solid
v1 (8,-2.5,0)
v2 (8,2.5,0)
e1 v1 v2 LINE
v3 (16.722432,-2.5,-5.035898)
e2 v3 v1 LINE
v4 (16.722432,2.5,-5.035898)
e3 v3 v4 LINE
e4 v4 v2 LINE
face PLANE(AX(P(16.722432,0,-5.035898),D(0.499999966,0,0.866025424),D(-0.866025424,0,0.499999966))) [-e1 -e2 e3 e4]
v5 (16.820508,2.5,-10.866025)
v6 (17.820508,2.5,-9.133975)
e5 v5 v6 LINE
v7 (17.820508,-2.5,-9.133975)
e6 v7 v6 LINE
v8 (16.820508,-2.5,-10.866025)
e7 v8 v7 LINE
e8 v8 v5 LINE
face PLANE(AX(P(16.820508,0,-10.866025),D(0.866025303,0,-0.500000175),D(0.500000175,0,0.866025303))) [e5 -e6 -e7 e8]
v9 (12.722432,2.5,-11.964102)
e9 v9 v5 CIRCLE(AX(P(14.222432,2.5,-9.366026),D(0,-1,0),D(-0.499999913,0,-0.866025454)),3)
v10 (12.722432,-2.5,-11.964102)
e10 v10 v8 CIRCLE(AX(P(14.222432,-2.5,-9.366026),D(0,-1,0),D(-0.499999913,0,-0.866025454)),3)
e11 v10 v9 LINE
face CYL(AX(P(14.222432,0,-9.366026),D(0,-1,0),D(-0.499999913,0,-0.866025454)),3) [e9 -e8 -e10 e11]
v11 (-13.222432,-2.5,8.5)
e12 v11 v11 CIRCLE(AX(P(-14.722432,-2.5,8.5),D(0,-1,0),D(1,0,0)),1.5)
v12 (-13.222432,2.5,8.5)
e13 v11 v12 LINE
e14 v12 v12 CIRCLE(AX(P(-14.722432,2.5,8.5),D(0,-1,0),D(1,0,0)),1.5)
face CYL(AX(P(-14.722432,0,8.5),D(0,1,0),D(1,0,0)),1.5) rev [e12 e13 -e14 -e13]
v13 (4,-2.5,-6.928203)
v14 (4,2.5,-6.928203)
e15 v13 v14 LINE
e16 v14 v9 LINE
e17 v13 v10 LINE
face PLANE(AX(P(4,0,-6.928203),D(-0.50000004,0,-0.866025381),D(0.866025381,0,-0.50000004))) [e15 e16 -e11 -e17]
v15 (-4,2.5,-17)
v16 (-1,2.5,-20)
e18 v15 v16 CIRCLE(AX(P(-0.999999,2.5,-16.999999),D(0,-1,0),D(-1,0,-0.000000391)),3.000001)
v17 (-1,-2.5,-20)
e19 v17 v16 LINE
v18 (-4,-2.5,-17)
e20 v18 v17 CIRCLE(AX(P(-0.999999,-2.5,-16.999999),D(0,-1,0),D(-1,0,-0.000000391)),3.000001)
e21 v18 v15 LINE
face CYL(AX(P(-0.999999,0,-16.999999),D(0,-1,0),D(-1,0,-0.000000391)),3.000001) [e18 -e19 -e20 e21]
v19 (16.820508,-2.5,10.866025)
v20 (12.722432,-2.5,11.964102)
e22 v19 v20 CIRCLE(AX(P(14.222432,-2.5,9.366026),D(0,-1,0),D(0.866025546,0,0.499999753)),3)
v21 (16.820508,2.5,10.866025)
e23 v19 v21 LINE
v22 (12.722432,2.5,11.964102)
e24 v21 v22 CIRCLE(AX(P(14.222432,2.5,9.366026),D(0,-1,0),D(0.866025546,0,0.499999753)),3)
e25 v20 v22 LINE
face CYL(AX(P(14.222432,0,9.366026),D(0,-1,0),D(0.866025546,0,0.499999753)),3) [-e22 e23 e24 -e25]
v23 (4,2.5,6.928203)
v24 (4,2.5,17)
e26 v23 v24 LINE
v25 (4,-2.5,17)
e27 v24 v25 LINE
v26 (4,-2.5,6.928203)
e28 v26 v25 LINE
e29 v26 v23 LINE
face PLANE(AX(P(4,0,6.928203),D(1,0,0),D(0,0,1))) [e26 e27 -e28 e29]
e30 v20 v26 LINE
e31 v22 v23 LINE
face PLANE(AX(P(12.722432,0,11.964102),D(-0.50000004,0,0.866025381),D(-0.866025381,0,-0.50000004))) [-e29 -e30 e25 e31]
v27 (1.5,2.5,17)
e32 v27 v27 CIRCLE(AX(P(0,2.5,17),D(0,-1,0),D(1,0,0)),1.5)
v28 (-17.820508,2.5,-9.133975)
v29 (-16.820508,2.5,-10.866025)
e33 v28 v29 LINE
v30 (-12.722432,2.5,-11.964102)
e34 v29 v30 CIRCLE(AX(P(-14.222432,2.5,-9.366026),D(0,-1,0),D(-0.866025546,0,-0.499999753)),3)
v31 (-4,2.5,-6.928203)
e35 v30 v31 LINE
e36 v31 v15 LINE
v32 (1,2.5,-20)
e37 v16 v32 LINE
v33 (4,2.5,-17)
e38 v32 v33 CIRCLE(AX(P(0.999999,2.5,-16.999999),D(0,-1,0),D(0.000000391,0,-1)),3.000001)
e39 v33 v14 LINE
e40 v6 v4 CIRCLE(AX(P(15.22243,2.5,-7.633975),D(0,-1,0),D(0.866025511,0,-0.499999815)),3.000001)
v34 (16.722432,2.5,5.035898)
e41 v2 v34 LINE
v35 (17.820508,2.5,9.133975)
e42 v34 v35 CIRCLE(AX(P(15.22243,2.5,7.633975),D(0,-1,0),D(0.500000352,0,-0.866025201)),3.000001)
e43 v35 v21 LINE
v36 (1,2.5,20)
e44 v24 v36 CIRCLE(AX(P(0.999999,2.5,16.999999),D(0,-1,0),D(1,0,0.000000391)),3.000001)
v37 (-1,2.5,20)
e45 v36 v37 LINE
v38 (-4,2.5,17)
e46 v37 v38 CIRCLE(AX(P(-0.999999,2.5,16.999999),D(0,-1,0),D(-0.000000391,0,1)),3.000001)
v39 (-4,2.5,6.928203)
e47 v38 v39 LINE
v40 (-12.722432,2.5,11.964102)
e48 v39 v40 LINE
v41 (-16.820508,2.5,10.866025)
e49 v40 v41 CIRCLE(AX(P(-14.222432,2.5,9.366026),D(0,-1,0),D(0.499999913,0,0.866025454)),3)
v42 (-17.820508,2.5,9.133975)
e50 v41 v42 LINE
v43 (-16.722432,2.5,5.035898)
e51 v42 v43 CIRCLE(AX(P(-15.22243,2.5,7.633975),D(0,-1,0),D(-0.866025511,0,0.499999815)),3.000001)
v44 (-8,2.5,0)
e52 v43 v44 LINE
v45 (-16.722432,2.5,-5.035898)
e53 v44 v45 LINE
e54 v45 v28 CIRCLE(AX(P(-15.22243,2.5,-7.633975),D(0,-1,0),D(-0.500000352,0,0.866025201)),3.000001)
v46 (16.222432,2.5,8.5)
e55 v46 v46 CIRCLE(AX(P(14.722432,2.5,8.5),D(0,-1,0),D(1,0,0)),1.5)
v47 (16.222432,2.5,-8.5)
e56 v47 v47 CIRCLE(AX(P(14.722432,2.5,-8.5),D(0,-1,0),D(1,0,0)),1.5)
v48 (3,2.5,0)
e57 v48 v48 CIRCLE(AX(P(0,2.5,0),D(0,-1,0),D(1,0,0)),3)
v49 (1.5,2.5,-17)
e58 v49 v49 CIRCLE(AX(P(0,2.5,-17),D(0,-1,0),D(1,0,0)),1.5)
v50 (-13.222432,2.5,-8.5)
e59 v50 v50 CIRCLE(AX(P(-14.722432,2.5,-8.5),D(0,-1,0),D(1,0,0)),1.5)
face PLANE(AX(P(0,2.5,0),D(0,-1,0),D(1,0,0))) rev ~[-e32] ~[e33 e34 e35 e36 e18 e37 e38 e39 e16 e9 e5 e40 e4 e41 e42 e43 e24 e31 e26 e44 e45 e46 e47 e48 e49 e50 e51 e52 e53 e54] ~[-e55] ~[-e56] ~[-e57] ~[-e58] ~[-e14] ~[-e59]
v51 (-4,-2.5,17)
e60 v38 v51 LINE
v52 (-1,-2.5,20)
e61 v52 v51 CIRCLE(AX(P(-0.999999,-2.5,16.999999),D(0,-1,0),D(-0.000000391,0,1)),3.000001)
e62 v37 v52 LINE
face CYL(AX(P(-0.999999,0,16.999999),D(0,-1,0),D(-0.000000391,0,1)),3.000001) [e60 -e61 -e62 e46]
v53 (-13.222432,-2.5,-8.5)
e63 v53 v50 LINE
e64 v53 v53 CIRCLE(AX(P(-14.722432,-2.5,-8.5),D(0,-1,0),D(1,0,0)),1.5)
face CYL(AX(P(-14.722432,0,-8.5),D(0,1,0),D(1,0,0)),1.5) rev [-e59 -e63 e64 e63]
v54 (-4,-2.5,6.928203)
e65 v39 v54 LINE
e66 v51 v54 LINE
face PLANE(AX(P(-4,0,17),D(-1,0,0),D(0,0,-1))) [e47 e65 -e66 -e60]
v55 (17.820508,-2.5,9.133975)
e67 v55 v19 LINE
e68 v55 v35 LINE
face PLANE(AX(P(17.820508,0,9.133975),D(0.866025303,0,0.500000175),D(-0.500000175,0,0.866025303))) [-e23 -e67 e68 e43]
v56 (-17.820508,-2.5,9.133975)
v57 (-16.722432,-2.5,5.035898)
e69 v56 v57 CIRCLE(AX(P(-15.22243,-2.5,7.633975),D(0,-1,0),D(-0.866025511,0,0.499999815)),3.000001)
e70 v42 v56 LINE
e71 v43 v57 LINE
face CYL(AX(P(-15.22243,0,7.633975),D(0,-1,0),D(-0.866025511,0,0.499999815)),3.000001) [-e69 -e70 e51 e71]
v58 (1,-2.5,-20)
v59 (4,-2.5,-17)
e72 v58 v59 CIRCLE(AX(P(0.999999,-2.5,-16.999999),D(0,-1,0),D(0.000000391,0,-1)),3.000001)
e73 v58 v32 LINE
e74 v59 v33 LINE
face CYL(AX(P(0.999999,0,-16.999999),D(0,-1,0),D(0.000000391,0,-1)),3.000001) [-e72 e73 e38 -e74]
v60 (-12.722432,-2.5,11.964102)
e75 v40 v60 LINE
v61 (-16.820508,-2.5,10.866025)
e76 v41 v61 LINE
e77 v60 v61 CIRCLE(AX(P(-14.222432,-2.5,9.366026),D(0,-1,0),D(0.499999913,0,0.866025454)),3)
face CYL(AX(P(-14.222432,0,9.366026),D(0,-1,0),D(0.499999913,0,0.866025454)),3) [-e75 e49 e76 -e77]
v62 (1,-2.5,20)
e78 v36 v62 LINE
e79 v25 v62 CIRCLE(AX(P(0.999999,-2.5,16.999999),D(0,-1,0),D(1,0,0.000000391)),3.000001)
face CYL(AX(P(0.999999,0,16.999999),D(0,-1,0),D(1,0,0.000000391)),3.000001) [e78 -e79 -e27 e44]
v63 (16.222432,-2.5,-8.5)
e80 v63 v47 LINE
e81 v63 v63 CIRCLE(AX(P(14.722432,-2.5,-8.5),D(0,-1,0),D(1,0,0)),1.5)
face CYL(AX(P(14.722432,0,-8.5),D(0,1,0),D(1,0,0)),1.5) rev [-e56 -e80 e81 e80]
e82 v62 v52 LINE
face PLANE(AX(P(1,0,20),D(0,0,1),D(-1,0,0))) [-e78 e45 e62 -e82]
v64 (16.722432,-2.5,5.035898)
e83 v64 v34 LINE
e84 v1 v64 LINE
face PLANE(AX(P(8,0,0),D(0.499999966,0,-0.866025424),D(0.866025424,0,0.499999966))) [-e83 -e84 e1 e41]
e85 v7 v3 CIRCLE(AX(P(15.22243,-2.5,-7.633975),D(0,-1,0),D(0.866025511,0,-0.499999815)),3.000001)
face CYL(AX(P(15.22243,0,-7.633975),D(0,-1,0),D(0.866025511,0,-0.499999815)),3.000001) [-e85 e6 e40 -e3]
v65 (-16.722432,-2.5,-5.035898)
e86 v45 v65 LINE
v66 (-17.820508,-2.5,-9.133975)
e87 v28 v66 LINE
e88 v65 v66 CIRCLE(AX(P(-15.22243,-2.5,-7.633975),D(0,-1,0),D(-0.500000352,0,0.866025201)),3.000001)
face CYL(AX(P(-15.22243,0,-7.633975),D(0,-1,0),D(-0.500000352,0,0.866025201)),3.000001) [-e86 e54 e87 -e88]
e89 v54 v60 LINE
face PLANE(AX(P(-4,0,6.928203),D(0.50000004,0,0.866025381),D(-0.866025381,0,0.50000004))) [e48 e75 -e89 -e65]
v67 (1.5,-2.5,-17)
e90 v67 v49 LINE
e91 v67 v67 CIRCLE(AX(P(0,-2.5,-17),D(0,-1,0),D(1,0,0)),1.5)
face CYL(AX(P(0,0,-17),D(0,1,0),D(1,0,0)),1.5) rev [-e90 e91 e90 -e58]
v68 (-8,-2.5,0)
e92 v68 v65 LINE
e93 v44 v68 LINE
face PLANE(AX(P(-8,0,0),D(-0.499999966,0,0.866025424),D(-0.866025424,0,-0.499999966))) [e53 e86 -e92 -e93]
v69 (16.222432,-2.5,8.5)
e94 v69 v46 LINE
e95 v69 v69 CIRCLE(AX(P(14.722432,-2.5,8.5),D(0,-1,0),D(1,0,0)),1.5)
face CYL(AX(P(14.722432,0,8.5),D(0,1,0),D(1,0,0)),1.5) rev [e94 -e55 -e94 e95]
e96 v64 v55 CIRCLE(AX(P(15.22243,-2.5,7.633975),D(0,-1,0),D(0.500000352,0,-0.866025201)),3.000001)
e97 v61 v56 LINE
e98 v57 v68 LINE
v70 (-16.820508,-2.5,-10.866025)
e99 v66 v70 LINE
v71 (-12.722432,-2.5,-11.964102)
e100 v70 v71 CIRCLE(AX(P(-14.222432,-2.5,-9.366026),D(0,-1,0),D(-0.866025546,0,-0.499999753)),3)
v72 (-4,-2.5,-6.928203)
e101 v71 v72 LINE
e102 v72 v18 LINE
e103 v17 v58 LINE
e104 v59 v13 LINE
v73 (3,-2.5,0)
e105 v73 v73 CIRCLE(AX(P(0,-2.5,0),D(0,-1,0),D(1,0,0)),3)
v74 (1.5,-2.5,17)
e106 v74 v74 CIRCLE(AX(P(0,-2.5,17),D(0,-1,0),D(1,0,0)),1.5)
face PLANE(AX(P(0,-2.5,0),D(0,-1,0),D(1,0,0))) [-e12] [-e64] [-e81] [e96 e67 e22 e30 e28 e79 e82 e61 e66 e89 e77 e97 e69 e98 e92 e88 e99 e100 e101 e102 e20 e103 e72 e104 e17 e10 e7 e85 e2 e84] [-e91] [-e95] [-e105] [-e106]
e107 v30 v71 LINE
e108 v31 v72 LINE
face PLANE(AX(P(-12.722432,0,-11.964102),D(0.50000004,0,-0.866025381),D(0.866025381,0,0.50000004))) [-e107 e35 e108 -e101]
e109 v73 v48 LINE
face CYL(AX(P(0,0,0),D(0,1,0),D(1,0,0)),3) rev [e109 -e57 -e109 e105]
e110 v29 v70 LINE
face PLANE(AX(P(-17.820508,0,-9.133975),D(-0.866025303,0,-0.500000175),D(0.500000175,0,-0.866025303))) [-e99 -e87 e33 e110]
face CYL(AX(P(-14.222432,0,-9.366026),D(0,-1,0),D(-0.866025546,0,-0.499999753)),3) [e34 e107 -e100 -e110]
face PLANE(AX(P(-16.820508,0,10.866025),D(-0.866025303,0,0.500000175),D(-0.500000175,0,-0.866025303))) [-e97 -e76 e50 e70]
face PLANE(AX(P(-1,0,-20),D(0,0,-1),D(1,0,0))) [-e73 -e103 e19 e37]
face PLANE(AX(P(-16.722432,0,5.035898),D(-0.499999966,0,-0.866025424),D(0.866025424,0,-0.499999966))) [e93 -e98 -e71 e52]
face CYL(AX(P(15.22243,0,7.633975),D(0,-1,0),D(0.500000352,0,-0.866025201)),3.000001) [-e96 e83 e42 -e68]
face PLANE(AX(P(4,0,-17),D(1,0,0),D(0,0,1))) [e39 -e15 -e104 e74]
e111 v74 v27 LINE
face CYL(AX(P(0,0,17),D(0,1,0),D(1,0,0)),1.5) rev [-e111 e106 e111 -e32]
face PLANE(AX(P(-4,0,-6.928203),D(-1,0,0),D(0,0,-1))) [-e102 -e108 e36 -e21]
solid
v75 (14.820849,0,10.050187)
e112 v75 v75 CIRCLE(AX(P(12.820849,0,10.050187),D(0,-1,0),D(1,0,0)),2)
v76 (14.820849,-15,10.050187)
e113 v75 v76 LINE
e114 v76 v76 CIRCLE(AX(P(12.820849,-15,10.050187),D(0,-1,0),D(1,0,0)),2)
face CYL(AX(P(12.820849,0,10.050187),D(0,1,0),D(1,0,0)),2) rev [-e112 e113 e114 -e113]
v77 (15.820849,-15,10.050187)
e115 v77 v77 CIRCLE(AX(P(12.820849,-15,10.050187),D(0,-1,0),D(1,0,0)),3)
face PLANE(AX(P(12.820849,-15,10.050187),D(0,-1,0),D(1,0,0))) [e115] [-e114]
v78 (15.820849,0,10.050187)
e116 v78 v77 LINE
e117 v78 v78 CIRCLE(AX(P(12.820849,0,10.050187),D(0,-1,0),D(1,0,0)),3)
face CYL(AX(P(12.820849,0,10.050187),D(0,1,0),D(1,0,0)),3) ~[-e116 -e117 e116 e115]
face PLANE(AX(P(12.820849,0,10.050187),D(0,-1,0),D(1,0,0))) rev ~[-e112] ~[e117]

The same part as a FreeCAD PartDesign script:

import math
import FreeCAD as App
import Part
import Sketcher
from FreeCAD import Vector
Q = App.Units.Quantity

doc = App.newDocument("Part")
body = doc.addObject("PartDesign::Body", "Body")

sketch1 = body.newObject("Sketcher::SketchObject", "Sketch")
sketch1.AttachmentSupport = (doc.getObject("XZ_Plane"), [""])
sketch1.MapMode = "FlatFace"
sketch1.addGeometry([
    Part.LineSegment(Vector(4, 6.928203, 0), Vector(4, 17, 0)),
    Part.ArcOfCircle(Part.Circle(Vector(0.999999, 16.999999, 0), Vector(0, 0, 1), 3.000001), math.radians(0.000022), math.radians(89.999978)),
    Part.LineSegment(Vector(1, 20, 0), Vector(-1, 20, 0)),
    Part.ArcOfCircle(Part.Circle(Vector(-0.999999, 16.999999, 0), Vector(0, 0, 1), 3.000001), math.radians(90.000022), math.radians(179.999978)),
    Part.LineSegment(Vector(-4, 17, 0), Vector(-4, 6.928203, 0)),
    Part.LineSegment(Vector(-4, 6.928203, 0), Vector(-12.722432, 11.964102, 0)),
    Part.ArcOfCircle(Part.Circle(Vector(-14.222432, 9.366026, 0), Vector(0, 0, 1), 3), math.radians(60.000006), math.radians(150.000016)),
    Part.LineSegment(Vector(-16.820508, 10.866025, 0), Vector(-17.820508, 9.133975, 0)),
    Part.ArcOfCircle(Part.Circle(Vector(-15.22243, 7.633975, 0), Vector(0, 0, 1), 3.000001), math.radians(150.000012), math.radians(239.999977)),
    Part.LineSegment(Vector(-16.722432, 5.035898, 0), Vector(-8, 0, 0)),
    Part.LineSegment(Vector(-8, 0, 0), Vector(-16.722432, -5.035898, 0)),
    Part.ArcOfCircle(Part.Circle(Vector(-15.22243, -7.633975, 0), Vector(0, 0, 1), 3.000001), math.radians(120.000023), math.radians(209.999988)),
    Part.LineSegment(Vector(-17.820508, -9.133975, 0), Vector(-16.820508, -10.866025, 0)),
    Part.ArcOfCircle(Part.Circle(Vector(-14.222432, -9.366026, 0), Vector(0, 0, 1), 3), math.radians(-150.000016), math.radians(-60.000006)),
    Part.LineSegment(Vector(-12.722432, -11.964102, 0), Vector(-4, -6.928203, 0)),
    Part.LineSegment(Vector(-4, -6.928203, 0), Vector(-4, -17, 0)),
    Part.ArcOfCircle(Part.Circle(Vector(-0.999999, -16.999999, 0), Vector(0, 0, 1), 3.000001), math.radians(-179.999978), math.radians(-90.000022)),
    Part.LineSegment(Vector(-1, -20, 0), Vector(1, -20, 0)),
    Part.ArcOfCircle(Part.Circle(Vector(0.999999, -16.999999, 0), Vector(0, 0, 1), 3.000001), math.radians(-89.999978), math.radians(-0.000022)),
    Part.LineSegment(Vector(4, -17, 0), Vector(4, -6.928203, 0)),
    Part.LineSegment(Vector(4, -6.928203, 0), Vector(12.722432, -11.964102, 0)),
    Part.ArcOfCircle(Part.Circle(Vector(14.222432, -9.366026, 0), Vector(0, 0, 1), 3), math.radians(-119.999994), math.radians(-29.999984)),
    Part.LineSegment(Vector(16.820508, -10.866025, 0), Vector(17.820508, -9.133975, 0)),
    Part.ArcOfCircle(Part.Circle(Vector(15.22243, -7.633975, 0), Vector(0, 0, 1), 3.000001), math.radians(-29.999988), math.radians(59.999977)),
    Part.LineSegment(Vector(16.722432, -5.035898, 0), Vector(8, 0, 0)),
    Part.LineSegment(Vector(8, 0, 0), Vector(16.722432, 5.035898, 0)),
    Part.ArcOfCircle(Part.Circle(Vector(15.22243, 7.633975, 0), Vector(0, 0, 1), 3.000001), math.radians(-59.999977), math.radians(29.999988)),
    Part.LineSegment(Vector(17.820508, 9.133975, 0), Vector(16.820508, 10.866025, 0)),
    Part.ArcOfCircle(Part.Circle(Vector(14.222432, 9.366026, 0), Vector(0, 0, 1), 3), math.radians(29.999984), math.radians(119.999994)),
    Part.LineSegment(Vector(12.722432, 11.964102, 0), Vector(4, 6.928203, 0)),
    Part.Circle(Vector(-14.722432, -8.5, 0), Vector(0, 0, 1), 1.5),
    Part.Circle(Vector(0, -17, 0), Vector(0, 0, 1), 1.5),
    Part.Circle(Vector(14.722432, -8.5, 0), Vector(0, 0, 1), 1.5),
    Part.Circle(Vector(-14.722432, 8.5, 0), Vector(0, 0, 1), 1.5),
    Part.Circle(Vector(0, 0, 0), Vector(0, 0, 1), 3),
    Part.Circle(Vector(14.722432, 8.5, 0), Vector(0, 0, 1), 1.5),
    Part.Circle(Vector(0, 17, 0), Vector(0, 0, 1), 1.5),
], False)
sketch1.addConstraint([
    Sketcher.Constraint("Tangent", 0, 2, 1, 1),
    Sketcher.Constraint("Tangent", 1, 2, 2, 1),
    Sketcher.Constraint("Tangent", 2, 2, 3, 1),
    Sketcher.Constraint("Tangent", 3, 2, 4, 1),
    Sketcher.Constraint("Coincident", 4, 2, 5, 1),
    Sketcher.Constraint("Tangent", 5, 2, 6, 1),
    Sketcher.Constraint("Tangent", 6, 2, 7, 1),
    Sketcher.Constraint("Tangent", 7, 2, 8, 1),
    Sketcher.Constraint("Tangent", 8, 2, 9, 1),
    Sketcher.Constraint("Coincident", 9, 2, 10, 1),
    Sketcher.Constraint("Tangent", 10, 2, 11, 1),
    Sketcher.Constraint("Tangent", 11, 2, 12, 1),
    Sketcher.Constraint("Tangent", 12, 2, 13, 1),
    Sketcher.Constraint("Tangent", 13, 2, 14, 1),
    Sketcher.Constraint("Coincident", 14, 2, 15, 1),
    Sketcher.Constraint("Tangent", 15, 2, 16, 1),
    Sketcher.Constraint("Tangent", 16, 2, 17, 1),
    Sketcher.Constraint("Tangent", 17, 2, 18, 1),
    Sketcher.Constraint("Tangent", 18, 2, 19, 1),
    Sketcher.Constraint("Coincident", 19, 2, 20, 1),
    Sketcher.Constraint("Tangent", 20, 2, 21, 1),
    Sketcher.Constraint("Tangent", 21, 2, 22, 1),
    Sketcher.Constraint("Tangent", 22, 2, 23, 1),
    Sketcher.Constraint("Tangent", 23, 2, 24, 1),
    Sketcher.Constraint("Coincident", 24, 2, 25, 1),
    Sketcher.Constraint("Tangent", 25, 2, 26, 1),
    Sketcher.Constraint("Tangent", 26, 2, 27, 1),
    Sketcher.Constraint("Tangent", 27, 2, 28, 1),
    Sketcher.Constraint("Tangent", 28, 2, 29, 1),
    Sketcher.Constraint("Coincident", 29, 2, 0, 1),
    Sketcher.Constraint("Vertical", 0),
    Sketcher.Constraint("Horizontal", 2),
    Sketcher.Constraint("Vertical", 4),
    Sketcher.Constraint("Vertical", 15),
    Sketcher.Constraint("Horizontal", 17),
    Sketcher.Constraint("Vertical", 19),
    Sketcher.Constraint("Coincident", 34, 3, -1, 1),
    Sketcher.Constraint("Equal", 1, 3),
    Sketcher.Constraint("Equal", 3, 6),
    Sketcher.Constraint("Equal", 6, 8),
    Sketcher.Constraint("Equal", 8, 11),
    Sketcher.Constraint("Equal", 11, 13),
    Sketcher.Constraint("Equal", 13, 16),
    Sketcher.Constraint("Equal", 16, 18),
    Sketcher.Constraint("Equal", 18, 21),
    Sketcher.Constraint("Equal", 21, 23),
    Sketcher.Constraint("Equal", 23, 26),
    Sketcher.Constraint("Equal", 26, 28),
    Sketcher.Constraint("Equal", 30, 31),
    Sketcher.Constraint("Equal", 31, 32),
    Sketcher.Constraint("Equal", 32, 33),
    Sketcher.Constraint("Equal", 28, 34),
    Sketcher.Constraint("Equal", 33, 35),
    Sketcher.Constraint("Equal", 35, 36),
    Sketcher.Constraint("Symmetric", 1, 3, 16, 3, -1, 1),
    Sketcher.Constraint("Symmetric", 6, 3, 21, 3, -1, 1),
    Sketcher.Constraint("Symmetric", 8, 3, 23, 3, -1, 1),
    Sketcher.Constraint("Symmetric", 11, 3, 26, 3, -1, 1),
    Sketcher.Constraint("Symmetric", 13, 3, 28, 3, -1, 1),
    Sketcher.Constraint("Symmetric", 32, 3, 33, 3, -1, 1),
    Sketcher.Constraint("Symmetric", 30, 3, 35, 3, -1, 1),
    Sketcher.Constraint("Symmetric", 31, 3, 36, 3, -1, 1),
    Sketcher.Constraint("Symmetric", 4, 2, 19, 2, -1, 1),
    Sketcher.Constraint("Symmetric", 9, 2, 24, 2, -1, 1),
    Sketcher.Constraint("Symmetric", 13, 3, 21, 3, -2),
    Sketcher.Constraint("Symmetric", 11, 3, 23, 3, -2),
    Sketcher.Constraint("Symmetric", 30, 3, 32, 3, -2),
    Sketcher.Constraint("Symmetric", 14, 2, 19, 2, -2),
    Sketcher.Constraint("PointOnObject", 31, 3, -2),
    Sketcher.Constraint("PointOnObject", 9, 2, -1),
    Sketcher.Constraint("Perpendicular", 5, 7),
    Sketcher.Constraint("Perpendicular", 7, 9),
    Sketcher.Constraint("Perpendicular", 27, 29),
    Sketcher.Constraint("Horizontal", 18, 3, 31, 3),
    Sketcher.Constraint("Equal", 5, 9),
    Sketcher.Constraint("Diameter", 30, 3.0),
    Sketcher.Constraint("Diameter", 34, 6.0),
    Sketcher.Constraint("DistanceX", 2, 2, 2, 1, 2.0),
    Sketcher.Constraint("Angle", 5, Q("149.999997 deg")),
    Sketcher.Constraint("Distance", 7, 1.999999),
    Sketcher.Constraint("DistanceY", -1, 1, 1, 3, 16.999999),
    Sketcher.Constraint("DistanceY", 11, 3, 6, 3, 17.000001),
    Sketcher.Constraint("DistanceY", 30, 3, 33, 3, 17.0),
    Sketcher.Constraint("DistanceX", 33, 3, 5, 2, 2.0),
])
pad1 = body.newObject("PartDesign::Pad", "Pad")
pad1.Profile = sketch1
pad1.Length = 5
pad1.Midplane = True
body2 = doc.addObject("PartDesign::Body", "Body001")

sketch2 = body2.newObject("Sketcher::SketchObject", "Sketch001")
sketch2.AttachmentSupport = (doc.getObject("XZ_Plane001"), [""])
sketch2.MapMode = "FlatFace"
sketch2.addGeometry([
    Part.Circle(Vector(-21.388192, 23.641713, 0), Vector(0, 0, 1), 4.5),
    Part.Circle(Vector(-21.388192, 23.641713, 0), Vector(0, 0, 1), 3),
], False)
sketch2.addConstraint([
    Sketcher.Constraint("Coincident", 1, 3, 0, 3),
    Sketcher.Constraint("Diameter", 0, 9.0),
    Sketcher.Constraint("Diameter", 1, 6.0),
    Sketcher.Constraint("DistanceX", 0, 3, -1, 1, 21.388192),
    Sketcher.Constraint("DistanceY", -1, 1, 0, 3, 23.641713),
])
pad2 = body2.newObject("PartDesign::Pad", "Pad001")
pad2.Profile = sketch2
pad2.Length = 5.5
body3 = doc.addObject("PartDesign::Body", "Body002")

sketch3 = body3.newObject("Sketcher::SketchObject", "Sketch002")
sketch3.AttachmentSupport = (doc.getObject("XZ_Plane002"), [""])
sketch3.MapMode = "FlatFace"
sketch3.addGeometry([
    Part.Circle(Vector(12.820849, 10.050187, 0), Vector(0, 0, 1), 3),
    Part.Circle(Vector(12.820849, 10.050187, 0), Vector(0, 0, 1), 2),
], False)
sketch3.addConstraint([
    Sketcher.Constraint("Coincident", 1, 3, 0, 3),
    Sketcher.Constraint("Diameter", 0, 6.0),
    Sketcher.Constraint("Diameter", 1, 4.0),
    Sketcher.Constraint("DistanceX", -1, 1, 0, 3, 12.820849),
    Sketcher.Constraint("DistanceY", -1, 1, 0, 3, 10.050187),
])
pad3 = body3.newObject("PartDesign::Pad", "Pad002")
pad3.Profile = sketch3
pad3.Length = 15
body2.Visibility = False

doc.recompute()
